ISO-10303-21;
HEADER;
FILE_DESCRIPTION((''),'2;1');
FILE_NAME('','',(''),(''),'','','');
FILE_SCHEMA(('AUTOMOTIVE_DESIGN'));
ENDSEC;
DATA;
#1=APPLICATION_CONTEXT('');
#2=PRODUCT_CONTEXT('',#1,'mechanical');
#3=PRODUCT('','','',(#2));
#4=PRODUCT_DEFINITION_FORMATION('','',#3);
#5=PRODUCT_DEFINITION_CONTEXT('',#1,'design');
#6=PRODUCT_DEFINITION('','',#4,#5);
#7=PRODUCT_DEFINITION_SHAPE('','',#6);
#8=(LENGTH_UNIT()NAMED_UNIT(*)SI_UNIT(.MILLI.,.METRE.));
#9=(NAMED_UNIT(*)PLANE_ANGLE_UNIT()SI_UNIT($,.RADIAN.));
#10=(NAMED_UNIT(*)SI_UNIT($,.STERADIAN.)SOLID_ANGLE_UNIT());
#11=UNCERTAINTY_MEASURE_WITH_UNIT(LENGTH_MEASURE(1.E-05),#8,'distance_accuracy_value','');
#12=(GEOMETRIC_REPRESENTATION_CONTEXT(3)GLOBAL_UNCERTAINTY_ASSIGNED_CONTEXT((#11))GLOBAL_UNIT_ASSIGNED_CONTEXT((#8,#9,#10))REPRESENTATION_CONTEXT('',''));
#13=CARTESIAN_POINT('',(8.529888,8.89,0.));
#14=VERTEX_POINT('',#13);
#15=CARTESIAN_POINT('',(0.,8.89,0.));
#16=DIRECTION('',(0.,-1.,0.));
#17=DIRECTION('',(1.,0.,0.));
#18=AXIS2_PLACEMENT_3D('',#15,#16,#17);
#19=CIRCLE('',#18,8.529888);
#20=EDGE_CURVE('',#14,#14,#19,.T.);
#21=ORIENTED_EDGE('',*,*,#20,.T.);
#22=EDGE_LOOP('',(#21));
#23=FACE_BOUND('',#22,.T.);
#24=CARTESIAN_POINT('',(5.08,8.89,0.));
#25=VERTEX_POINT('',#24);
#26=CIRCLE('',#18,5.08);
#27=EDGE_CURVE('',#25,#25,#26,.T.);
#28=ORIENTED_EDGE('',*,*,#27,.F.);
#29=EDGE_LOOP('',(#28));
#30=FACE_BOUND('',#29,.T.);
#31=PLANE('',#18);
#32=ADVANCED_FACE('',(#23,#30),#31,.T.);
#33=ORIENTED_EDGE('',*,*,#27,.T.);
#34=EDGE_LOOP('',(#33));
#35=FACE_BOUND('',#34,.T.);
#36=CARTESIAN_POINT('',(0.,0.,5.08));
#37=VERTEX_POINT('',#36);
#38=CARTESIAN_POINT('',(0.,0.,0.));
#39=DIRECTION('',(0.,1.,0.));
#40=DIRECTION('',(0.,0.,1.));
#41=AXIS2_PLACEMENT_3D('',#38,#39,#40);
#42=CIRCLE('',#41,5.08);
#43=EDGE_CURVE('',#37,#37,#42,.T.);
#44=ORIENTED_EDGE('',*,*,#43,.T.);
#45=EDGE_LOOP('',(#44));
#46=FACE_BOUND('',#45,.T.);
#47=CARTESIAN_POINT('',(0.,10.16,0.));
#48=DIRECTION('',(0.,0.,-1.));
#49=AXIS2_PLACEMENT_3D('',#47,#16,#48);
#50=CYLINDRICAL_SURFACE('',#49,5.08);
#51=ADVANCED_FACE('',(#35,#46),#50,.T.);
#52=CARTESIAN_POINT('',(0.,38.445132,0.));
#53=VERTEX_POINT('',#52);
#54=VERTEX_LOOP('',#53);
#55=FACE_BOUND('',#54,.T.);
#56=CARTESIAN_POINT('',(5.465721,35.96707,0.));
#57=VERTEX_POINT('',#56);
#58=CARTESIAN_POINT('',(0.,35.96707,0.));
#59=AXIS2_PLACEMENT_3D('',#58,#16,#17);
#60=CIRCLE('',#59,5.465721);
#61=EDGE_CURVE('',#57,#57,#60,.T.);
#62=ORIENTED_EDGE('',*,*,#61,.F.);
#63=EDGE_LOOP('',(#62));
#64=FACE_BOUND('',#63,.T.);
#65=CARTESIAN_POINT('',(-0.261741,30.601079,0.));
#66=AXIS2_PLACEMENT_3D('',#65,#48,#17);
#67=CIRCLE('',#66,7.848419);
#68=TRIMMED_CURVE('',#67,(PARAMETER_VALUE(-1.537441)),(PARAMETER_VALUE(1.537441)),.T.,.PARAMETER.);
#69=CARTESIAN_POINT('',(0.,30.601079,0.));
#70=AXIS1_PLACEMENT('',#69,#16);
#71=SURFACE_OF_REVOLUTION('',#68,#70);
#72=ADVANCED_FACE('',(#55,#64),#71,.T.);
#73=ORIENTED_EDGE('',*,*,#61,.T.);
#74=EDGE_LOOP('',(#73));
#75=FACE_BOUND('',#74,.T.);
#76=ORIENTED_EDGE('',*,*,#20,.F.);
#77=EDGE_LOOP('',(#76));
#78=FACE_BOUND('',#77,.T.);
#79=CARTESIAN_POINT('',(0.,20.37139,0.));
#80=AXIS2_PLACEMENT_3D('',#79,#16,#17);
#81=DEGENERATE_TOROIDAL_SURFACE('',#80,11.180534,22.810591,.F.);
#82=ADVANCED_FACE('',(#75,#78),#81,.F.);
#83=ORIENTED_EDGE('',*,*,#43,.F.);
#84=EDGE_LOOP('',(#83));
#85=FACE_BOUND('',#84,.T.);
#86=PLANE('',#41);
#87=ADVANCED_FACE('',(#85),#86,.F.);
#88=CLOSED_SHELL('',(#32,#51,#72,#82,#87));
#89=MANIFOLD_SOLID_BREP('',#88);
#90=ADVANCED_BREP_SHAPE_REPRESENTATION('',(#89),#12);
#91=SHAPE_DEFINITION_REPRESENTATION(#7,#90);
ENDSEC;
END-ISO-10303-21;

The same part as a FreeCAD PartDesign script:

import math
import FreeCAD as App
import Part
import Sketcher
Q = App.Units.Quantity

doc = App.newDocument("Part")
body = doc.addObject("PartDesign::Body", "Body")

# Sketch on XZ plane
sketch1 = doc.addObject("Sketcher::SketchObject", "Sketch")
body.addObject(sketch1)
sketch1.AttachmentSupport = (doc.XZ_Plane, [""])
sketch1.MapMode = "FlatFace"
sketch1.addGeometry(Part.Circle(App.Vector(0, 0, 0), App.Vector(0, 0, 1), 5.08), False)
sketch1.addConstraint(Sketcher.Constraint("Coincident", 0, 3, -1, 1))
sketch1.addConstraint(Sketcher.Constraint("Diameter", 0, Q("0.4 in")))
pad1 = doc.addObject("PartDesign::Pad", "Pad")
body.addObject(pad1)
pad1.Profile = sketch1
pad1.Length = Q("0.4 in")
pad1.Reversed = True

# Sketch on XY plane
sketch2 = doc.addObject("Sketcher::SketchObject", "Sketch001")
body.addObject(sketch2)
sketch2.AttachmentSupport = (doc.XY_Plane, [""])
sketch2.MapMode = "FlatFace"
sketch2.addGeometry(Part.LineSegment(App.Vector(0, 38.445132, 0), App.Vector(0, 8.89, 0)), False)
sketch2.addGeometry(Part.LineSegment(App.Vector(0, 8.89, 0), App.Vector(8.529888, 8.89, 0)), False)
sketch2.addGeometry(Part.ArcOfCircle(Part.Circle(App.Vector(-11.180534, 20.37139, 0), App.Vector(0, 0, 1), 22.810591), math.radians(-30.22095), math.radians(43.133729)), False)
sketch2.addGeometry(Part.ArcOfCircle(Part.Circle(App.Vector(-0.261741, 30.601079, 0), App.Vector(0, 0, 1), 7.848419), math.radians(43.133729), math.radians(88.088862)), False)
sketch2.addConstraint(Sketcher.Constraint("Coincident", 0, 2, 1, 1))
sketch2.addConstraint(Sketcher.Constraint("Coincident", 1, 2, 2, 1))
sketch2.addConstraint(Sketcher.Constraint("Tangent", 2, 2, 3, 1))
sketch2.addConstraint(Sketcher.Constraint("Coincident", 3, 2, 0, 1))
sketch2.addConstraint(Sketcher.Constraint("Vertical", 0))
sketch2.addConstraint(Sketcher.Constraint("Horizontal", 1))
sketch2.addConstraint(Sketcher.Constraint("PointOnObject", 0, 2, -2))
sketch2.addConstraint(Sketcher.Constraint("DistanceY", -1, 1, 0, 2, Q("0.35 in")))
sketch2.addConstraint(Sketcher.Constraint("Radius", 2, Q("22.810591 mm")))
sketch2.addConstraint(Sketcher.Constraint("Radius", 3, Q("7.848419 mm")))
sketch2.addConstraint(Sketcher.Constraint("DistanceX", 1, 1, 1, 2, Q("8.529888 mm")))
sketch2.addConstraint(Sketcher.Constraint("DistanceY", 0, 2, 0, 1, Q("29.555132 mm")))
sketch2.addConstraint(Sketcher.Constraint("DistanceY", -1, 1, 2, 3, Q("20.37139 mm")))
revolution = doc.addObject("PartDesign::Revolution", "Revolution")
body.addObject(revolution)
revolution.Profile = sketch2
revolution.ReferenceAxis = (sketch2, ["V_Axis"])
revolution.Angle = 360

doc.recompute()
